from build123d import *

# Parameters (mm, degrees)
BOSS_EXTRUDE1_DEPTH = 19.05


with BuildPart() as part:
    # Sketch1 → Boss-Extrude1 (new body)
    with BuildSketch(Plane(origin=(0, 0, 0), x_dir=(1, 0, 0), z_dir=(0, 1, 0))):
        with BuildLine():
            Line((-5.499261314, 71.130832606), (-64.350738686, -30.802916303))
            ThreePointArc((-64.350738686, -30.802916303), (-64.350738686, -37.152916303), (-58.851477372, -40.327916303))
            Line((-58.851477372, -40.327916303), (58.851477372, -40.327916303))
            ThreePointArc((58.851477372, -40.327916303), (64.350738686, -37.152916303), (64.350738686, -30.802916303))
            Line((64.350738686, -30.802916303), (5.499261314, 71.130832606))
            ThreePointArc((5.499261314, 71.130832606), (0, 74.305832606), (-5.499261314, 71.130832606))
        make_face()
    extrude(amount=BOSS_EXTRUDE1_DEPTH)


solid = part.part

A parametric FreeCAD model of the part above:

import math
import FreeCAD as App
import Part
import Sketcher
from FreeCAD import Vector
Q = App.Units.Quantity

doc = App.newDocument("Part")
params = doc.addObject("Spreadsheet::Sheet", "Params")
for row, (alias, value) in enumerate([
    ("sketch1_radius", "0.25 in"),
    ("pad1_length", "0.75 in"),
], start=1):
    params.set(f"A{row}", alias)
    params.set(f"B{row}", "=" + value)
    params.setAlias(f"B{row}", alias)

body = doc.addObject("PartDesign::Body", "Body")

# Sketch on XZ plane
sketch1 = body.newObject("Sketcher::SketchObject", "Sketch")
sketch1.AttachmentSupport = (doc.getObject("XZ_Plane"), [""])
sketch1.MapMode = "FlatFace"
sketch1.addGeometry(Part.LineSegment(Vector(-5.499261, -71.130833, 0), Vector(-64.350739, 30.802916, 0)), False)
sketch1.addGeometry(Part.ArcOfCircle(Part.Circle(Vector(-58.851477, 33.977916, 0), Vector(0, 0, 1), 6.35), math.radians(90), math.radians(210)), False)
sketch1.addGeometry(Part.LineSegment(Vector(-58.851477, 40.327916, 0), Vector(58.851477, 40.327916, 0)), False)
sketch1.addGeometry(Part.ArcOfCircle(Part.Circle(Vector(58.851477, 33.977916, 0), Vector(0, 0, 1), 6.35), math.radians(-30), math.radians(90)), False)
sketch1.addGeometry(Part.LineSegment(Vector(64.350739, 30.802916, 0), Vector(5.499261, -71.130833, 0)), False)
sketch1.addGeometry(Part.ArcOfCircle(Part.Circle(Vector(0, -67.955833, 0), Vector(0, 0, 1), 6.35), math.radians(-150), math.radians(-30)), False)
sketch1.addConstraint(Sketcher.Constraint("Tangent", 0, 2, 1, 2))
sketch1.addConstraint(Sketcher.Constraint("Tangent", 1, 1, 2, 1))
sketch1.addConstraint(Sketcher.Constraint("Tangent", 2, 2, 3, 2))
sketch1.addConstraint(Sketcher.Constraint("Tangent", 3, 1, 4, 1))
sketch1.addConstraint(Sketcher.Constraint("Tangent", 4, 2, 5, 2))
sketch1.addConstraint(Sketcher.Constraint("Tangent", 5, 1, 0, 1))
sketch1.addConstraint(Sketcher.Constraint("Horizontal", 2))
sketch1.addConstraint(Sketcher.Constraint("Equal", 1, 3))
sketch1.addConstraint(Sketcher.Constraint("Equal", 3, 5))
sketch1.addConstraint(Sketcher.Constraint("Symmetric", 0, 2, 3, 1, -2))
sketch1.addConstraint(Sketcher.Constraint("Radius", 1, Q("0.25 in")))
sketch1.addConstraint(Sketcher.Constraint("Angle", 0, Q("120 deg")))
sketch1.addConstraint(Sketcher.Constraint("DistanceX", 0, 2, 4, 2, Q("2.75 in")))
sketch1.addConstraint(Sketcher.Constraint("DistanceY", -1, 1, 1, 3, Q("33.977916 mm")))
sketch1.setExpression("Constraints[10]", "Params.sketch1_radius")
pad1 = body.newObject("PartDesign::Pad", "Pad")
pad1.Profile = sketch1
pad1.setExpression("Length", "Params.pad1_length")
pad1.Reversed = True

doc.recompute()
